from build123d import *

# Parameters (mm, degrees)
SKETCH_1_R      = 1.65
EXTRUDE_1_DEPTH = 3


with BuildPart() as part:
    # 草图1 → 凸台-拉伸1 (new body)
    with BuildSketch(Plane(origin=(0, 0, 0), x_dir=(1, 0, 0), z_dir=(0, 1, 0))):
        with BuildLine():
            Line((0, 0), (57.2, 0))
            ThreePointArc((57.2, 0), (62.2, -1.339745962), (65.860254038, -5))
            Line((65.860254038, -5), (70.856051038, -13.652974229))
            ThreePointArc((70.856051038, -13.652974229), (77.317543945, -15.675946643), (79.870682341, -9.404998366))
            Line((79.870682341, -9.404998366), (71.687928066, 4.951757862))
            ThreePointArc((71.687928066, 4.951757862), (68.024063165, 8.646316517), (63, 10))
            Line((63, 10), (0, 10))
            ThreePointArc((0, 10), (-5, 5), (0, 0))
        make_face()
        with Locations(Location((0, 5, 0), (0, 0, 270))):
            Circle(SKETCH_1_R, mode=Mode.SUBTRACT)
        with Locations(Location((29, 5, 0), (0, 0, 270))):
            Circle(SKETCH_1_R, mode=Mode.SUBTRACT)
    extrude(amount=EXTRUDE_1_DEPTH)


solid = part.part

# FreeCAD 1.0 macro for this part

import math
import FreeCAD as App
import Part
import Sketcher

V = App.Vector
Q = App.Units.Quantity

doc = App.newDocument("Part")
params = doc.addObject("Spreadsheet::Sheet", "Params")
for row, (alias, value) in enumerate([
    ("sketch1_radius", "10 mm"),
    ("sketch1_diameter", "3.3 mm"),
    ("sketch1_width", "63 mm"),
    ("sketch1_width2", "57.2 mm"),
    ("pad1_length", "3 mm"),
], start=1):
    params.set(f"A{row}", alias)
    params.set(f"B{row}", "=" + value)
    params.setAlias(f"B{row}", alias)

body = doc.addObject("PartDesign::Body", "Body")

# Sketch on XZ plane
sketch1 = doc.addObject("Sketcher::SketchObject", "Sketch")
body.addObject(sketch1)
sketch1.AttachmentSupport = (doc.XZ_Plane, [""])
sketch1.MapMode = "FlatFace"
sketch1.addGeometry([
    Part.LineSegment(V(0, 0, 0), V(57.2, 0, 0)),  # 0
    Part.ArcOfCircle(Part.Circle(V(57.2, 10, 0), V(0, 0, 1), 10), math.radians(-90), math.radians(-30)),  # 1
    Part.LineSegment(V(65.9, 5, 0), V(70.9, 13.7, 0)),  # 2
    Part.ArcOfCircle(Part.Circle(V(75.2, 11.2, 0), V(0, 0, 1), 5), math.radians(-20), math.radians(150)),  # 3
    Part.LineSegment(V(79.9, 9.4, 0), V(71.7, -5, 0)),  # 4
    Part.ArcOfCircle(Part.Circle(V(63, 0, 0), V(0, 0, 1), 10), math.radians(-90), math.radians(-30)),  # 5
    Part.LineSegment(V(63, -10, 0), V(0, -10, 0)),  # 6
    Part.ArcOfCircle(Part.Circle(V(0, -5, 0), V(0, 0, 1), 5), math.radians(90), math.radians(270)),  # 7
    Part.Circle(V(0, -5, 0), V(0, 0, 1), 1.6),  # 8
    Part.Circle(V(29, -5, 0), V(0, 0, 1), 1.6),  # 9
], False)
sketch1.addConstraint([
    Sketcher.Constraint("Tangent", 0, 2, 1, 1),
    Sketcher.Constraint("Tangent", 1, 2, 2, 1),
    Sketcher.Constraint("Tangent", 2, 2, 3, 2),
    Sketcher.Constraint("Coincident", 3, 1, 4, 1),
    Sketcher.Constraint("Tangent", 4, 2, 5, 2),
    Sketcher.Constraint("Tangent", 5, 1, 6, 1),
    Sketcher.Constraint("Tangent", 6, 2, 7, 2),
    Sketcher.Constraint("Tangent", 7, 1, 0, 1),
    Sketcher.Constraint("Horizontal", 0),
    Sketcher.Constraint("Horizontal", 6),
    Sketcher.Constraint("Coincident", 7, 1, -1, 1),
    Sketcher.Constraint("Coincident", 8, 3, 7, 3),
    Sketcher.Constraint("Equal", 1, 5),
    Sketcher.Constraint("Equal", 3, 7),
    Sketcher.Constraint("Equal", 8, 9),
    Sketcher.Constraint("PointOnObject", 5, 3, -1),
    Sketcher.Constraint("Horizontal", 8, 3, 9, 3),
    Sketcher.Constraint("Radius", 1, 10.0),
    Sketcher.Constraint("Diameter", 8, 3.3),
    Sketcher.Constraint("DistanceX", 6, 2, 6, 1, 63.0),
    Sketcher.Constraint("Angle", 2, Q("60 deg")),
    Sketcher.Constraint("DistanceX", 0, 1, 0, 2, 57.2),
    Sketcher.Constraint("DistanceX", -1, 1, 9, 3, 29.0),
    Sketcher.Constraint("DistanceY", -1, 1, 3, 1, 9.404998),
    Sketcher.Constraint("Distance", 4, 16.524948),
])
sketch1.setExpression("Constraints[17]", "Params.sketch1_radius")
sketch1.setExpression("Constraints[18]", "Params.sketch1_diameter")
sketch1.setExpression("Constraints[19]", "Params.sketch1_width")
sketch1.setExpression("Constraints[21]", "Params.sketch1_width2")
pad1 = doc.addObject("PartDesign::Pad", "Pad")
body.addObject(pad1)
pad1.Profile = sketch1
pad1.setExpression("Length", "Params.pad1_length")
pad1.Reversed = True

doc.recompute()
